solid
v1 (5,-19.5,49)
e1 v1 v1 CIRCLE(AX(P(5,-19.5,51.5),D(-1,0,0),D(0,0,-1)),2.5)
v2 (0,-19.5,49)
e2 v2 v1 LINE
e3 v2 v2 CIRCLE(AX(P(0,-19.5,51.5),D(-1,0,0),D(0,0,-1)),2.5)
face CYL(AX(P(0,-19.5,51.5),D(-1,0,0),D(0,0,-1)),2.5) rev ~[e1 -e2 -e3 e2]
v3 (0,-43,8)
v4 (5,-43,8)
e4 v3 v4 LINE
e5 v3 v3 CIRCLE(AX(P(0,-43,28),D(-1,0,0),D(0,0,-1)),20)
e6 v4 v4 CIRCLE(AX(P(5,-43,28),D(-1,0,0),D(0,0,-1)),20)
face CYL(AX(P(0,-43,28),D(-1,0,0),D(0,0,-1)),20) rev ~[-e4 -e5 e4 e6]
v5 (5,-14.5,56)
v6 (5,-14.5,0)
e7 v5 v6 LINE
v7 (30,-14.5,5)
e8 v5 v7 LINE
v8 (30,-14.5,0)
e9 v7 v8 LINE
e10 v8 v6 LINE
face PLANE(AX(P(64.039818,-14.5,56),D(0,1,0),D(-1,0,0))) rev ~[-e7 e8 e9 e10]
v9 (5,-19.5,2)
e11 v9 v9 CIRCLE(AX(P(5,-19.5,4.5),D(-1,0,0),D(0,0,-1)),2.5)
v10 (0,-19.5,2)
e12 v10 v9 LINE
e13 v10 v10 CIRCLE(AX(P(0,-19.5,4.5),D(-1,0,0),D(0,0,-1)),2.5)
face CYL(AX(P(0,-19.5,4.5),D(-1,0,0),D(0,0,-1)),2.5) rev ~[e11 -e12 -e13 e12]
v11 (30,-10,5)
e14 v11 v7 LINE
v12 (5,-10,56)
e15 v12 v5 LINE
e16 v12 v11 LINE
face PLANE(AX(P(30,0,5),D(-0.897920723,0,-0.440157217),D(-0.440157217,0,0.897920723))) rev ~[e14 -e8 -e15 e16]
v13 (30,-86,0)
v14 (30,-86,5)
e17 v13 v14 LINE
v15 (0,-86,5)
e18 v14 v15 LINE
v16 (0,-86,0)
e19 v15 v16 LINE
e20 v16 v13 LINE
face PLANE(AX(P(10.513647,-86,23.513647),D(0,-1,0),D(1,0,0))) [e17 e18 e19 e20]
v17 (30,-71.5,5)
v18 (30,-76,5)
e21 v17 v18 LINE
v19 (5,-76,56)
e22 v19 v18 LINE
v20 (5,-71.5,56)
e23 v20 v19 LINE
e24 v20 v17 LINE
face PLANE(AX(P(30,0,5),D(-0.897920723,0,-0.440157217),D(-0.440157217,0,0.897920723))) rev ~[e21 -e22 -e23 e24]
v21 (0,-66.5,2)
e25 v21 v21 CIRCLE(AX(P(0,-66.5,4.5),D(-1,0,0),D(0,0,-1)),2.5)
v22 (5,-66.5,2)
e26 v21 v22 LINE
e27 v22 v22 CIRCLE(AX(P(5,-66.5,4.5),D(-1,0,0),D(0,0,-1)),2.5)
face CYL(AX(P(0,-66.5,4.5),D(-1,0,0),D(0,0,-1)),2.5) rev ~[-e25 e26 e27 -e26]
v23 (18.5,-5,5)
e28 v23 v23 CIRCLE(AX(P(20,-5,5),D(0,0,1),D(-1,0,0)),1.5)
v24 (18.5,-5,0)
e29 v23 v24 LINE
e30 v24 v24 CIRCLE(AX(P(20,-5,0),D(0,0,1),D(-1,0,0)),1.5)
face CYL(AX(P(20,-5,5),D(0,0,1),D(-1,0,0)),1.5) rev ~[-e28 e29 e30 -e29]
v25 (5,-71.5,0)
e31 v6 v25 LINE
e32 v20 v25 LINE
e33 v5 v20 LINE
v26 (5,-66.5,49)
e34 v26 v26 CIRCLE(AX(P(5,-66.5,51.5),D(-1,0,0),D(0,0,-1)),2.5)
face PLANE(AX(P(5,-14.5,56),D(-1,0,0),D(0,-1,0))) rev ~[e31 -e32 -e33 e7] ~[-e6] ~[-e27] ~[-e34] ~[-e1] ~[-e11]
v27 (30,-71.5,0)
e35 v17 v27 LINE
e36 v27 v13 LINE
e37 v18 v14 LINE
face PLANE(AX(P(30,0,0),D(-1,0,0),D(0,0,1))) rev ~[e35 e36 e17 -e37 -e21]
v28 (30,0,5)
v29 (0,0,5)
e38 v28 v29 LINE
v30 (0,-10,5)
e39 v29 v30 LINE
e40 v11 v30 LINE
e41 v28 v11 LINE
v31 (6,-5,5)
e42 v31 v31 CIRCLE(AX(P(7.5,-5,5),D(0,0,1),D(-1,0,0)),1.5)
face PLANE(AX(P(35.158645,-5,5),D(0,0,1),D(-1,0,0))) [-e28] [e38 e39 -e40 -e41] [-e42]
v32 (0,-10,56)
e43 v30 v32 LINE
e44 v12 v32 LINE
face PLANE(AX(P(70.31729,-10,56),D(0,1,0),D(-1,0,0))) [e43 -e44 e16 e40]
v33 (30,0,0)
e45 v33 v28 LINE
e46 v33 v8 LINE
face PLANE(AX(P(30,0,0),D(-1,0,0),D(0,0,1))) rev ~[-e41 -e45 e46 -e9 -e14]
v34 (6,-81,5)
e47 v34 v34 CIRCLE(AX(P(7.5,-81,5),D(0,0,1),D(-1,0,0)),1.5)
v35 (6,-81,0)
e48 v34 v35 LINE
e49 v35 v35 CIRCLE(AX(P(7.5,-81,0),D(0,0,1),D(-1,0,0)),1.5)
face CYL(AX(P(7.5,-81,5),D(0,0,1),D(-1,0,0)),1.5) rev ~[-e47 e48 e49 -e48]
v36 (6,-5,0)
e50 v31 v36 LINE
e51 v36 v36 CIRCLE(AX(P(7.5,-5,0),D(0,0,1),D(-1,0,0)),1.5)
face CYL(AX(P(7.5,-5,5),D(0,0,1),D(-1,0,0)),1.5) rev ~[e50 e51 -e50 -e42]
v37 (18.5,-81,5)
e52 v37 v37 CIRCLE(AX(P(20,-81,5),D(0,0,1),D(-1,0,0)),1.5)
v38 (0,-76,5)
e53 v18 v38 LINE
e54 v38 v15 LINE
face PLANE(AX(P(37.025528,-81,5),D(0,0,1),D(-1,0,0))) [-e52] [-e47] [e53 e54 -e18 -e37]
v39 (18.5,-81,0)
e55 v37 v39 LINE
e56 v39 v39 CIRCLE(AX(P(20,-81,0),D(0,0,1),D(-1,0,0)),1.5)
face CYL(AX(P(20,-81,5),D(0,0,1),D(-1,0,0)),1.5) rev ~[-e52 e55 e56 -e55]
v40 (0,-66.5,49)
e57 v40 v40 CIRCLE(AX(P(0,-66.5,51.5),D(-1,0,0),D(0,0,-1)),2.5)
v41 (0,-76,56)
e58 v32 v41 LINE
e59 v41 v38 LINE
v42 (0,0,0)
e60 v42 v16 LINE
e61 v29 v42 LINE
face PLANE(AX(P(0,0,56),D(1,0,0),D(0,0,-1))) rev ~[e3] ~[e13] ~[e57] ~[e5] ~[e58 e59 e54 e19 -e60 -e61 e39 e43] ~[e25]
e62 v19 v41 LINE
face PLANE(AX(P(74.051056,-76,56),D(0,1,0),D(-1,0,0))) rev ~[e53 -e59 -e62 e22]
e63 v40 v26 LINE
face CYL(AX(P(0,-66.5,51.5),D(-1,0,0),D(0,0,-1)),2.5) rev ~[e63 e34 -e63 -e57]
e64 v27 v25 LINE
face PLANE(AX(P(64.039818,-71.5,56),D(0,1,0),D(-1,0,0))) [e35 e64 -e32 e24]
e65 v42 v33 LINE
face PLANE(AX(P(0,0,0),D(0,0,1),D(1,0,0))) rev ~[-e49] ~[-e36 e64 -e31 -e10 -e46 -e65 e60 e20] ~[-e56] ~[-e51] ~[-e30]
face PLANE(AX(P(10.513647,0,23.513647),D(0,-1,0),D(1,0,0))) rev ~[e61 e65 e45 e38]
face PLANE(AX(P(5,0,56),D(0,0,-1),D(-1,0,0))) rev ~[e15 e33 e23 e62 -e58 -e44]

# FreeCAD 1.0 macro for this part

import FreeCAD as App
import Part
import Sketcher
from FreeCAD import Vector
Q = App.Units.Quantity


def add_polygon(sketch, points):
    """Adds a closed chain of lines whose ends are joined by coincident constraints."""
    first, n = sketch.GeometryCount, len(points)
    for a, b in zip(points, points[1:] + points[:1]):
        sketch.addGeometry(Part.LineSegment(App.Vector(*a, 0), App.Vector(*b, 0)), False)
    for i in range(n):
        sketch.addConstraint(Sketcher.Constraint("Coincident", first + i, 2, first + (i + 1) % n, 1))

doc = App.newDocument("Part")
body = doc.addObject("PartDesign::Body", "Body")

# Sketch on XZ plane
sketch1 = body.newObject("Sketcher::SketchObject", "Sketch")
sketch1.AttachmentSupport = (doc.getObject("XZ_Plane"), [""])
sketch1.MapMode = "FlatFace"
add_polygon(sketch1, [(0, 0), (30, 0), (30, 5), (5, 56), (0, 56)])  # lines 0-4
sketch1.addConstraint([
    Sketcher.Constraint("Horizontal", 0),
    Sketcher.Constraint("Vertical", 1),
    Sketcher.Constraint("Horizontal", 3),
    Sketcher.Constraint("Vertical", 4),
    Sketcher.Constraint("Coincident", 4, 2, -1, 1),
    Sketcher.Constraint("Equal", 3, 1),
    Sketcher.Constraint("DistanceX", 0, 1, 0, 2, Q("30 mm")),
    Sketcher.Constraint("DistanceX", 3, 2, 3, 1, Q("5 mm")),
    Sketcher.Constraint("DistanceY", 4, 2, 4, 1, Q("56 mm")),
])
pad1 = body.newObject("PartDesign::Pad", "Pad")
pad1.Profile = sketch1
pad1.Length = 86

# Sketch on XY plane
sketch2 = body.newObject("Sketcher::SketchObject", "Sketch001")
sketch2.AttachmentSupport = (doc.getObject("XY_Plane"), [""])
sketch2.MapMode = "FlatFace"
sketch2.AttachmentOffset = App.Placement(Vector(0, 0, 56), App.Rotation())
add_polygon(sketch2, [(64.039818, -71.5), (64.039818, -14.5), (5, -14.5), (5, -71.5)])  # lines 0-3
sketch2.addConstraint([
    Sketcher.Constraint("Vertical", 0),
    Sketcher.Constraint("Horizontal", 1),
    Sketcher.Constraint("Vertical", 2),
    Sketcher.Constraint("Horizontal", 3),
    Sketcher.Constraint("DistanceY", 0, 1, 0, 2, Q("57 mm")),
    Sketcher.Constraint("DistanceX", -1, 1, 1, 2, Q("5 mm")),
    Sketcher.Constraint("DistanceY", 0, 2, -1, 1, Q("14.5 mm")),
    Sketcher.Constraint("DistanceX", 1, 2, 1, 1, Q("59.039818 mm")),
])
pocket1 = body.newObject("PartDesign::Pocket", "Pocket")
pocket1.Profile = sketch2
pocket1.Type = "ThroughAll"

# Sketch on XY plane
sketch3 = body.newObject("Sketcher::SketchObject", "Sketch002")
sketch3.AttachmentSupport = (doc.getObject("XY_Plane"), [""])
sketch3.MapMode = "FlatFace"
sketch3.AttachmentOffset = App.Placement(Vector(0, 0, 56), App.Rotation())
add_polygon(sketch3, [(74.051056, -86), (74.051056, -76), (0, -76), (0, -86)])  # lines 0-3
add_polygon(sketch3, [(70.31729, -10), (70.31729, 0), (0, 0), (0, -10)])  # lines 4-7
sketch3.addConstraint([
    Sketcher.Constraint("Vertical", 0),
    Sketcher.Constraint("Horizontal", 1),
    Sketcher.Constraint("Vertical", 2),
    Sketcher.Constraint("Horizontal", 3),
    Sketcher.Constraint("Vertical", 4),
    Sketcher.Constraint("Horizontal", 5),
    Sketcher.Constraint("Vertical", 6),
    Sketcher.Constraint("Horizontal", 7),
    Sketcher.Constraint("Coincident", 5, 2, -1, 1),
    Sketcher.Constraint("PointOnObject", 1, 2, -2),
    Sketcher.Constraint("Equal", 2, 4),
    Sketcher.Constraint("DistanceY", 0, 1, 0, 2, Q("10 mm")),
    Sketcher.Constraint("DistanceY", 0, 2, -1, 1, Q("76 mm")),
    Sketcher.Constraint("DistanceX", 5, 2, 5, 1, Q("70.317291 mm")),
    Sketcher.Constraint("DistanceX", 1, 2, 1, 1, Q("74.051056 mm")),
])
pocket2 = body.newObject("PartDesign::Pocket", "Pocket001")
pocket2.Profile = sketch3
pocket2.Length = 51

# Sketch on XY plane
sketch4 = body.newObject("Sketcher::SketchObject", "Sketch003")
sketch4.AttachmentSupport = (doc.getObject("XY_Plane"), [""])
sketch4.MapMode = "FlatFace"
sketch4.AttachmentOffset = App.Placement(Vector(0, 0, 5), App.Rotation())
sketch4.addGeometry([
    Part.Circle(Vector(20, -81, 0), Vector(0, 0, 1), 1.5),
    Part.Circle(Vector(7.5, -81, 0), Vector(0, 0, 1), 1.5),
    Part.Circle(Vector(20, -5, 0), Vector(0, 0, 1), 1.5),
    Part.Circle(Vector(7.5, -5, 0), Vector(0, 0, 1), 1.5),
], False)
sketch4.addConstraint([
    Sketcher.Constraint("Equal", 0, 1),
    Sketcher.Constraint("Equal", 1, 2),
    Sketcher.Constraint("Equal", 2, 3),
    Sketcher.Constraint("Horizontal", 0, 3, 1, 3),
    Sketcher.Constraint("Horizontal", 2, 3, 3, 3),
    Sketcher.Constraint("Vertical", 0, 3, 2, 3),
    Sketcher.Constraint("Vertical", 1, 3, 3, 3),
    Sketcher.Constraint("Diameter", 0, Q("3 mm")),
    Sketcher.Constraint("DistanceX", -1, 1, 0, 3, Q("20 mm")),
    Sketcher.Constraint("DistanceY", 0, 3, -1, 1, Q("81 mm")),
    Sketcher.Constraint("DistanceY", 2, 3, -1, 1, Q("5 mm")),
    Sketcher.Constraint("DistanceX", -1, 1, 1, 3, Q("7.5 mm")),
])
pocket3 = body.newObject("PartDesign::Pocket", "Pocket002")
pocket3.Profile = sketch4
pocket3.Type = "ThroughAll"

# Sketch on YZ plane
sketch5 = body.newObject("Sketcher::SketchObject", "Sketch004")
sketch5.AttachmentSupport = (doc.getObject("YZ_Plane"), [""])
sketch5.MapMode = "FlatFace"
sketch5.addGeometry(Part.Circle(Vector(-43, 28, 0), Vector(0, 0, 1), 20), False)
sketch5.addConstraint([
    Sketcher.Constraint("Diameter", 0, Q("40 mm")),
    Sketcher.Constraint("DistanceX", 0, 3, -1, 1, Q("43 mm")),
    Sketcher.Constraint("DistanceY", -1, 1, 0, 3, Q("28 mm")),
])
pocket4 = body.newObject("PartDesign::Pocket", "Pocket003")
pocket4.Profile = sketch5
pocket4.Type = "ThroughAll"
pocket4.Reversed = True

# Sketch on YZ plane
sketch6 = body.newObject("Sketcher::SketchObject", "Sketch005")
sketch6.AttachmentSupport = (doc.getObject("YZ_Plane"), [""])
sketch6.MapMode = "FlatFace"
sketch6.addGeometry([
    Part.Circle(Vector(-66.5, 51.5, 0), Vector(0, 0, 1), 2.5),
    Part.Circle(Vector(-66.5, 4.5, 0), Vector(0, 0, 1), 2.5),
    Part.Circle(Vector(-19.5, 51.5, 0), Vector(0, 0, 1), 2.5),
    Part.Circle(Vector(-19.5, 4.5, 0), Vector(0, 0, 1), 2.5),
], False)
sketch6.addConstraint([
    Sketcher.Constraint("Equal", 0, 1),
    Sketcher.Constraint("Equal", 1, 2),
    Sketcher.Constraint("Equal", 2, 3),
    Sketcher.Constraint("Horizontal", 0, 3, 2, 3),
    Sketcher.Constraint("Horizontal", 1, 3, 3, 3),
    Sketcher.Constraint("Vertical", 0, 3, 1, 3),
    Sketcher.Constraint("Vertical", 2, 3, 3, 3),
    Sketcher.Constraint("Diameter", 0, Q("5 mm")),
    Sketcher.Constraint("DistanceY", 1, 3, 0, 3, Q("47 mm")),
    Sketcher.Constraint("DistanceX", 0, 3, 2, 3, Q("47 mm")),
    Sketcher.Constraint("DistanceX", 0, 3, -1, 1, Q("66.5 mm")),
    Sketcher.Constraint("DistanceY", -1, 1, 0, 3, Q("51.5 mm")),
])
pocket5 = body.newObject("PartDesign::Pocket", "Pocket004")
pocket5.Profile = sketch6
pocket5.Type = "ThroughAll"
pocket5.Reversed = True

doc.recompute()
